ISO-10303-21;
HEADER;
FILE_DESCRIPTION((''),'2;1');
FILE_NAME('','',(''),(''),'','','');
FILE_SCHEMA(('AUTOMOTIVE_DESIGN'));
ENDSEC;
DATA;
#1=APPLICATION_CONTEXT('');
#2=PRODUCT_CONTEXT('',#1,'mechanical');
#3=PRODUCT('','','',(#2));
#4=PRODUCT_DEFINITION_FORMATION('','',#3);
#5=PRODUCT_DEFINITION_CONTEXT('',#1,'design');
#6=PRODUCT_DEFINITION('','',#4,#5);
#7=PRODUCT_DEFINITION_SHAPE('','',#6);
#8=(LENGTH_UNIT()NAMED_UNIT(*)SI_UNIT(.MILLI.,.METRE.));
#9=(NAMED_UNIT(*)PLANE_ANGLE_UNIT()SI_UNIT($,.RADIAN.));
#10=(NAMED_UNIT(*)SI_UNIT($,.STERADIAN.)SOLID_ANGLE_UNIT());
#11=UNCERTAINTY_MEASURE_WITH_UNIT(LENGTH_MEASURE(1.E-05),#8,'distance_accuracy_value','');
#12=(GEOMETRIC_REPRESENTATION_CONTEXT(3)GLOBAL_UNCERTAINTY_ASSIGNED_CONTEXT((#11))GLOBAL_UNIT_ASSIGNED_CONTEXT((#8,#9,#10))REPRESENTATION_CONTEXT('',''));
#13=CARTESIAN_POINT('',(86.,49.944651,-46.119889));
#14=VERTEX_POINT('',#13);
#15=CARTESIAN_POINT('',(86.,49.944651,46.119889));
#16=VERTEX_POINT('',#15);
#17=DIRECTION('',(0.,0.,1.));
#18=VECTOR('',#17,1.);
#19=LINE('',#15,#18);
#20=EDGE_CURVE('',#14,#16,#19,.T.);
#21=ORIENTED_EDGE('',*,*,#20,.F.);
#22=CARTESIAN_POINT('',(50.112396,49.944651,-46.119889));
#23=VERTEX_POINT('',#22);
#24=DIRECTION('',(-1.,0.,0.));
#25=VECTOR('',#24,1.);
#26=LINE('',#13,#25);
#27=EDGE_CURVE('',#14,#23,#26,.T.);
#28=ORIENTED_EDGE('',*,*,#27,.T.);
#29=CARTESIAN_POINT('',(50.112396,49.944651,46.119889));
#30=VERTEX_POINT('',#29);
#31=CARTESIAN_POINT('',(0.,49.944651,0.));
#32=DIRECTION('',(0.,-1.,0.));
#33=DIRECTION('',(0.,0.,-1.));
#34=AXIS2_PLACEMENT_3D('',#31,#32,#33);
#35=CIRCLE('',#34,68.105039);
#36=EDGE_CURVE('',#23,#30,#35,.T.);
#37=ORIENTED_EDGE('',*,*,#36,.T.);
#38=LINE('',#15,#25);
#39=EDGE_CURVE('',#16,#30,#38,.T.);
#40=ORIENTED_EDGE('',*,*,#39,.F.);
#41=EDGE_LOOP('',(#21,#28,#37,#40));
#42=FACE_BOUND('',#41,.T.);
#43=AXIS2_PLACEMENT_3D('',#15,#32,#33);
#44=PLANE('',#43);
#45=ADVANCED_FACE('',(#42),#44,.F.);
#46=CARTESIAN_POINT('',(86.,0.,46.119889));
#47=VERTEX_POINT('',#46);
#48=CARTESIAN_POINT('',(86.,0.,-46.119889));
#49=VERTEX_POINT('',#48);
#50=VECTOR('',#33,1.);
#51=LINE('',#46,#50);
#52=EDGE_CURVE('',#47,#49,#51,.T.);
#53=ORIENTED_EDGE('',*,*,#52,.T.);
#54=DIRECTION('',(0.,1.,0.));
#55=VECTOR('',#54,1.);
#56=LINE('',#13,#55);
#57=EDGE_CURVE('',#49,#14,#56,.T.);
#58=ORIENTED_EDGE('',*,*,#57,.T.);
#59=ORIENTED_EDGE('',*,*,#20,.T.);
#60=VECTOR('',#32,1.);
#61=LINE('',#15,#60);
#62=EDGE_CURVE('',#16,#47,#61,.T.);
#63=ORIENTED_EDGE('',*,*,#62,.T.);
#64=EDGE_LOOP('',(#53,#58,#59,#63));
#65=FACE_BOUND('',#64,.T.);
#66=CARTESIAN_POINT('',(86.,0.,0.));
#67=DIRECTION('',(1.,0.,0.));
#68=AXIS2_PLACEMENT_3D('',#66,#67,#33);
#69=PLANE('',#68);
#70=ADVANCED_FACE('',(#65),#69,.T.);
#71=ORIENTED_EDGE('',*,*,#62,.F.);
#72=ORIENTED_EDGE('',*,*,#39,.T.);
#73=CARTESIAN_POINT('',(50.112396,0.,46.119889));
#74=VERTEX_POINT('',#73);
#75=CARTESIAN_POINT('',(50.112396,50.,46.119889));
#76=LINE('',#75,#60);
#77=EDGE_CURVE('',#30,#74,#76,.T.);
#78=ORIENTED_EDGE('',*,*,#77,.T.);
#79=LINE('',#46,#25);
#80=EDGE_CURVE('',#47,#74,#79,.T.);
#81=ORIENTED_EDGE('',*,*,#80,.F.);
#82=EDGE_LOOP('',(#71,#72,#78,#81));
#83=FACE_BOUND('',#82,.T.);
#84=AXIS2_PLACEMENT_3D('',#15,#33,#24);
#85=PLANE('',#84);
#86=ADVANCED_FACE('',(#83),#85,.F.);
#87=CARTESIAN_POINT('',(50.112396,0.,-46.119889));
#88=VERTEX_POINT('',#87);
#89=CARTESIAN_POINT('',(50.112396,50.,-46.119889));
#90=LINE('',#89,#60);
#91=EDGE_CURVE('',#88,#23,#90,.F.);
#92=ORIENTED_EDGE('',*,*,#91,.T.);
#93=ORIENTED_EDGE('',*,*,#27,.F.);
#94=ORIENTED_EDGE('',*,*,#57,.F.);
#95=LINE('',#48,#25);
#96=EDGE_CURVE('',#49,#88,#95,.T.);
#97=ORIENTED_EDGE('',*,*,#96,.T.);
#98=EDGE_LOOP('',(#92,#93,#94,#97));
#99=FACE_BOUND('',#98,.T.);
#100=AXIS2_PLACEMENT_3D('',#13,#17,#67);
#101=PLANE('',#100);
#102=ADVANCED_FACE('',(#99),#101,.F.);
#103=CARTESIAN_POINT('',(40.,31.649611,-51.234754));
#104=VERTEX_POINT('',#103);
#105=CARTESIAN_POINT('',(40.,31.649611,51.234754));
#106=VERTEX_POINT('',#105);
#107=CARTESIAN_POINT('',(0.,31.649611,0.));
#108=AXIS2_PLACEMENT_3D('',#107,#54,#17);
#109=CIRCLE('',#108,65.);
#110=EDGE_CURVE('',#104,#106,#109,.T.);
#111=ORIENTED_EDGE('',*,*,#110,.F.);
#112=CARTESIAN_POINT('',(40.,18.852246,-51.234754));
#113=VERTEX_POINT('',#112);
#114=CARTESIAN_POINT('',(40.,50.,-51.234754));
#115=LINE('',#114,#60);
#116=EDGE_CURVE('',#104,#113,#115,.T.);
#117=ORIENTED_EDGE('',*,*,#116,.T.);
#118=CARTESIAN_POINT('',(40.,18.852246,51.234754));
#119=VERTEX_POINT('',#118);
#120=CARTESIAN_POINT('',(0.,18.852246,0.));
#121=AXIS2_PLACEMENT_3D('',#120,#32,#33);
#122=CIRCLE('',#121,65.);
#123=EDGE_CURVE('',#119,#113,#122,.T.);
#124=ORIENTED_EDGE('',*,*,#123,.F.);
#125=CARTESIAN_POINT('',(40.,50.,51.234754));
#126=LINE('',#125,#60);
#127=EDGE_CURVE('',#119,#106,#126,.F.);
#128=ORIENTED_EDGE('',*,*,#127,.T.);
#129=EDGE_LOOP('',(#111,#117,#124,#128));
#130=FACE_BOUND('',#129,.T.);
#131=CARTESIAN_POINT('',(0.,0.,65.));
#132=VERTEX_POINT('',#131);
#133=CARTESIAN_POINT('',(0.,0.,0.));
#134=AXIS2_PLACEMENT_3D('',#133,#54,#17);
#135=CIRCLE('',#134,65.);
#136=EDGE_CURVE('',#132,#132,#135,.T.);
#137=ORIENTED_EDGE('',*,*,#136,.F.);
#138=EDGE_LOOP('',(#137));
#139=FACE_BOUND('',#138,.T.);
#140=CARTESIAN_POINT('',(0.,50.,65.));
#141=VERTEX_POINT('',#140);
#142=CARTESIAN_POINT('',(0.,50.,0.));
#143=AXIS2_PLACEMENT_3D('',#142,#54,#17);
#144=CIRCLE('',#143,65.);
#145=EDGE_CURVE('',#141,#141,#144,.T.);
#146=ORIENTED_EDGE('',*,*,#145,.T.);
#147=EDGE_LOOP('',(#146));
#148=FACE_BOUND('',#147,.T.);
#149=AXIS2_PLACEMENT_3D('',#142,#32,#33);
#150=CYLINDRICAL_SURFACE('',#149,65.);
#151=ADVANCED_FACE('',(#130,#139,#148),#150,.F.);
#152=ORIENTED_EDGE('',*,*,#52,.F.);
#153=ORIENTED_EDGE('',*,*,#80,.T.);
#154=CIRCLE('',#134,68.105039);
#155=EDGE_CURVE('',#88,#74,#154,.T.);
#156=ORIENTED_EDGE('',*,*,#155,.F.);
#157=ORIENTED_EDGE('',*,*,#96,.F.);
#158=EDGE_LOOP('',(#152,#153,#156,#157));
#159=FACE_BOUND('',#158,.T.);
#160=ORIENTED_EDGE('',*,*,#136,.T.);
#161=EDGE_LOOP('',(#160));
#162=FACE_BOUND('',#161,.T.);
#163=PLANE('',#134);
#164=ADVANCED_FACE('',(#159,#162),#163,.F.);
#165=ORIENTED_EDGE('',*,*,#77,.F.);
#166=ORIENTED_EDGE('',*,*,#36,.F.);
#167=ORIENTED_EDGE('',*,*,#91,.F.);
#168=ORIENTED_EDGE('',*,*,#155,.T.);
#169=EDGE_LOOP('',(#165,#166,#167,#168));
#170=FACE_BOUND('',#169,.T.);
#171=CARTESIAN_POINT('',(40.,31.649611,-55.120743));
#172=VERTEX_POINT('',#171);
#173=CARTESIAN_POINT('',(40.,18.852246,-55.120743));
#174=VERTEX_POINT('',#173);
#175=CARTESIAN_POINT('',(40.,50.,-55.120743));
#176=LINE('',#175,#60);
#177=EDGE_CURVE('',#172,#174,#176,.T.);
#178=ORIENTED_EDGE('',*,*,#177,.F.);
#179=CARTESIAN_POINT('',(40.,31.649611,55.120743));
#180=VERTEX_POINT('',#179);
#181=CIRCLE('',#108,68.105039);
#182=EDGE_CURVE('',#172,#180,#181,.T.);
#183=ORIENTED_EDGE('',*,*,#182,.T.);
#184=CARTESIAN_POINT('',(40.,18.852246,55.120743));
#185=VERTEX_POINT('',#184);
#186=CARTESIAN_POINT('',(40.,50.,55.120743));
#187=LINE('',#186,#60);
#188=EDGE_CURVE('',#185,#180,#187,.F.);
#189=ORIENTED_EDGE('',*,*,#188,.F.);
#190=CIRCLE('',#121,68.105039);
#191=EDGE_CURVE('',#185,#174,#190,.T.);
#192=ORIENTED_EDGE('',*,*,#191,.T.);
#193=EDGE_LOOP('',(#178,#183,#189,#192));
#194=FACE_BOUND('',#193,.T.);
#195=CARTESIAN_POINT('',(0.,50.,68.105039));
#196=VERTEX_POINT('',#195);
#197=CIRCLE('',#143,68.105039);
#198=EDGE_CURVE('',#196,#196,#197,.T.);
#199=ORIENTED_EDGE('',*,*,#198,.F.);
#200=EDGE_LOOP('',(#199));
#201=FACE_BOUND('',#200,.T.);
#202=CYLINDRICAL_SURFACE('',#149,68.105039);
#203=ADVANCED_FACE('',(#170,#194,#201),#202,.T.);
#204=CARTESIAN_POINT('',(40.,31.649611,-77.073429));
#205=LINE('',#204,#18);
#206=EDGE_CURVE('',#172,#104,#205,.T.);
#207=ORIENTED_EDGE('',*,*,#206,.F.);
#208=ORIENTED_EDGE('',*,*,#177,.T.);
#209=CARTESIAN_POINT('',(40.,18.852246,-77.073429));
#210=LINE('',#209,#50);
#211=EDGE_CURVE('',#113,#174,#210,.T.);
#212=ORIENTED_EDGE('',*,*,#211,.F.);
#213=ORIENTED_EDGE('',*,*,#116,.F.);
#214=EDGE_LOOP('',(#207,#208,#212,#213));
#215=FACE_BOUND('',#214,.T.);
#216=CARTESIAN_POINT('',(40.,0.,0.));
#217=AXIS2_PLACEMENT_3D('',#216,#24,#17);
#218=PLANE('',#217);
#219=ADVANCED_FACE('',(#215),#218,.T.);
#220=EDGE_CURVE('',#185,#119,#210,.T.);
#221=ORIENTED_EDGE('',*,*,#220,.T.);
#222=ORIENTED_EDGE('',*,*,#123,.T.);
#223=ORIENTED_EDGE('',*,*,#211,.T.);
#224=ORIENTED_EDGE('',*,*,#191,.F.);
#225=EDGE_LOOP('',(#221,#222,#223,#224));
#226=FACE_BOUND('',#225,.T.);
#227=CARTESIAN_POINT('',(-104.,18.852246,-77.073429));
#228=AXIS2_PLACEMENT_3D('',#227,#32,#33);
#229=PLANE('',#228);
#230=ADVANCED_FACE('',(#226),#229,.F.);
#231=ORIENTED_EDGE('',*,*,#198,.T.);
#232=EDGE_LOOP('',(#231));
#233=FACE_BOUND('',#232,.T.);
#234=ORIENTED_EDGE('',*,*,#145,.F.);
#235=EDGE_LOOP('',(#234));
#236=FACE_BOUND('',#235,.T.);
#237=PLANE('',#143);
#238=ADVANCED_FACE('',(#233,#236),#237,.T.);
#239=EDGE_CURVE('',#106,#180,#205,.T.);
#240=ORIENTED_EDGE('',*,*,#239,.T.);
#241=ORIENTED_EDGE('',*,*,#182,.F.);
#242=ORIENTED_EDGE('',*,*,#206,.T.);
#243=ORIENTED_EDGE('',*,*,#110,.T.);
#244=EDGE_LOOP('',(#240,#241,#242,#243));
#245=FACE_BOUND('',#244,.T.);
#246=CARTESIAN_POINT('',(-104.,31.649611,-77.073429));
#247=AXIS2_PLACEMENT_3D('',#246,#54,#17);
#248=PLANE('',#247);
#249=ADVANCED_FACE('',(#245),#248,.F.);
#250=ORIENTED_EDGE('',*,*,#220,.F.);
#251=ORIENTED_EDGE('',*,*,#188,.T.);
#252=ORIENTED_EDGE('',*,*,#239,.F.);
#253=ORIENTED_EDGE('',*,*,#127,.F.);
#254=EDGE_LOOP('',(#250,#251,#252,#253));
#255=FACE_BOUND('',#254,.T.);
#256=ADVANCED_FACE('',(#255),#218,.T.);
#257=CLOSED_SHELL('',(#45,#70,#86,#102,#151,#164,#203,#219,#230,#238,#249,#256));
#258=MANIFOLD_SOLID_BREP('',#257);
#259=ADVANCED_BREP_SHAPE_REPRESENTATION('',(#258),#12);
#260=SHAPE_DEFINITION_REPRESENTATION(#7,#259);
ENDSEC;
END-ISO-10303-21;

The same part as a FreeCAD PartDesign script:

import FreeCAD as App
import Part
import Sketcher

V = App.Vector


def add_polygon(sketch, points):
    """Adds a closed chain of lines whose ends are joined by coincident constraints."""
    first, n = sketch.GeometryCount, len(points)
    for a, b in zip(points, points[1:] + points[:1]):
        sketch.addGeometry(Part.LineSegment(App.Vector(*a, 0), App.Vector(*b, 0)), False)
    for i in range(n):
        sketch.addConstraint(Sketcher.Constraint("Coincident", first + i, 2, first + (i + 1) % n, 1))

doc = App.newDocument("Part")
body = doc.addObject("PartDesign::Body", "Body")

# Sketch on XZ plane
sketch1 = doc.addObject("Sketcher::SketchObject", "Sketch")
body.addObject(sketch1)
sketch1.AttachmentSupport = (doc.XZ_Plane, [""])
sketch1.MapMode = "FlatFace"
sketch1.addGeometry([
    Part.Circle(V(0, 0, 0), V(0, 0, 1), 68.105039),
    Part.Circle(V(0, 0, 0), V(0, 0, 1), 65),
], False)
sketch1.addConstraint([
    Sketcher.Constraint("Coincident", 0, 3, -1, 1),
    Sketcher.Constraint("Coincident", 1, 3, -1, 1),
    Sketcher.Constraint("Diameter", 1, 130.0),
    Sketcher.Constraint("Diameter", 0, 136.210078),
])
pad1 = doc.addObject("PartDesign::Pad", "Pad")
body.addObject(pad1)
pad1.Profile = sketch1
pad1.Length = 50
pad1.Reversed = True

# Sketch on YZ plane
sketch2 = doc.addObject("Sketcher::SketchObject", "Sketch001")
body.addObject(sketch2)
sketch2.AttachmentSupport = (doc.YZ_Plane, [""])
sketch2.MapMode = "FlatFace"
add_polygon(sketch2, [(49.944651, 46.119889), (0, 46.119889), (0, -46.119889), (49.944651, -46.119889)])  # lines 0-3
sketch2.addConstraint([
    Sketcher.Constraint("Horizontal", 0),
    Sketcher.Constraint("Vertical", 1),
    Sketcher.Constraint("Horizontal", 2),
    Sketcher.Constraint("Vertical", 3),
    Sketcher.Constraint("Symmetric", 0, 2, 1, 2, -1, 1),
    Sketcher.Constraint("DistanceX", 0, 2, 0, 1, 49.944651),
    Sketcher.Constraint("DistanceY", 1, 2, 1, 1, 92.239777),
])
pad2 = doc.addObject("PartDesign::Pad", "Pad001")
body.addObject(pad2)
pad2.Profile = sketch2
pad2.Length = 86

# Sketch on XZ plane
sketch3 = doc.addObject("Sketcher::SketchObject", "Sketch002")
body.addObject(sketch3)
sketch3.AttachmentSupport = (doc.XZ_Plane, [""])
sketch3.MapMode = "FlatFace"
sketch3.AttachmentOffset = App.Placement(V(0, 0, -50), App.Rotation())
sketch3.addGeometry(Part.Circle(V(0, 0, 0), V(0, 0, 1), 65), False)
sketch3.addConstraint([
    Sketcher.Constraint("Coincident", 0, 3, -1, 1),
    Sketcher.Constraint("Diameter", 0, 130.0),
])
pocket1 = doc.addObject("PartDesign::Pocket", "Pocket")
body.addObject(pocket1)
pocket1.Profile = sketch3
pocket1.Length = 86
pocket1.Reversed = True

# Sketch on YZ plane
sketch4 = doc.addObject("Sketcher::SketchObject", "Sketch003")
body.addObject(sketch4)
sketch4.AttachmentSupport = (doc.YZ_Plane, [""])
sketch4.MapMode = "FlatFace"
sketch4.AttachmentOffset = App.Placement(V(0, 0, 40), App.Rotation())
add_polygon(sketch4, [(31.649611, 82.30462), (18.852246, 82.30462), (18.852246, -77.073429), (31.649611, -77.073429)])  # lines 0-3
sketch4.addConstraint([
    Sketcher.Constraint("Horizontal", 0),
    Sketcher.Constraint("Vertical", 1),
    Sketcher.Constraint("Horizontal", 2),
    Sketcher.Constraint("Vertical", 3),
    Sketcher.Constraint("DistanceY", 1, 2, 1, 1, 159.378049),
    Sketcher.Constraint("DistanceX", 0, 2, 0, 1, 12.797365),
    Sketcher.Constraint("DistanceY", -1, 1, 0, 2, 82.30462),
    Sketcher.Constraint("DistanceX", -1, 1, 2, 2, 31.649611),
])
pocket2 = doc.addObject("PartDesign::Pocket", "Pocket001")
body.addObject(pocket2)
pocket2.Profile = sketch4
pocket2.Length = 144

doc.recompute()
